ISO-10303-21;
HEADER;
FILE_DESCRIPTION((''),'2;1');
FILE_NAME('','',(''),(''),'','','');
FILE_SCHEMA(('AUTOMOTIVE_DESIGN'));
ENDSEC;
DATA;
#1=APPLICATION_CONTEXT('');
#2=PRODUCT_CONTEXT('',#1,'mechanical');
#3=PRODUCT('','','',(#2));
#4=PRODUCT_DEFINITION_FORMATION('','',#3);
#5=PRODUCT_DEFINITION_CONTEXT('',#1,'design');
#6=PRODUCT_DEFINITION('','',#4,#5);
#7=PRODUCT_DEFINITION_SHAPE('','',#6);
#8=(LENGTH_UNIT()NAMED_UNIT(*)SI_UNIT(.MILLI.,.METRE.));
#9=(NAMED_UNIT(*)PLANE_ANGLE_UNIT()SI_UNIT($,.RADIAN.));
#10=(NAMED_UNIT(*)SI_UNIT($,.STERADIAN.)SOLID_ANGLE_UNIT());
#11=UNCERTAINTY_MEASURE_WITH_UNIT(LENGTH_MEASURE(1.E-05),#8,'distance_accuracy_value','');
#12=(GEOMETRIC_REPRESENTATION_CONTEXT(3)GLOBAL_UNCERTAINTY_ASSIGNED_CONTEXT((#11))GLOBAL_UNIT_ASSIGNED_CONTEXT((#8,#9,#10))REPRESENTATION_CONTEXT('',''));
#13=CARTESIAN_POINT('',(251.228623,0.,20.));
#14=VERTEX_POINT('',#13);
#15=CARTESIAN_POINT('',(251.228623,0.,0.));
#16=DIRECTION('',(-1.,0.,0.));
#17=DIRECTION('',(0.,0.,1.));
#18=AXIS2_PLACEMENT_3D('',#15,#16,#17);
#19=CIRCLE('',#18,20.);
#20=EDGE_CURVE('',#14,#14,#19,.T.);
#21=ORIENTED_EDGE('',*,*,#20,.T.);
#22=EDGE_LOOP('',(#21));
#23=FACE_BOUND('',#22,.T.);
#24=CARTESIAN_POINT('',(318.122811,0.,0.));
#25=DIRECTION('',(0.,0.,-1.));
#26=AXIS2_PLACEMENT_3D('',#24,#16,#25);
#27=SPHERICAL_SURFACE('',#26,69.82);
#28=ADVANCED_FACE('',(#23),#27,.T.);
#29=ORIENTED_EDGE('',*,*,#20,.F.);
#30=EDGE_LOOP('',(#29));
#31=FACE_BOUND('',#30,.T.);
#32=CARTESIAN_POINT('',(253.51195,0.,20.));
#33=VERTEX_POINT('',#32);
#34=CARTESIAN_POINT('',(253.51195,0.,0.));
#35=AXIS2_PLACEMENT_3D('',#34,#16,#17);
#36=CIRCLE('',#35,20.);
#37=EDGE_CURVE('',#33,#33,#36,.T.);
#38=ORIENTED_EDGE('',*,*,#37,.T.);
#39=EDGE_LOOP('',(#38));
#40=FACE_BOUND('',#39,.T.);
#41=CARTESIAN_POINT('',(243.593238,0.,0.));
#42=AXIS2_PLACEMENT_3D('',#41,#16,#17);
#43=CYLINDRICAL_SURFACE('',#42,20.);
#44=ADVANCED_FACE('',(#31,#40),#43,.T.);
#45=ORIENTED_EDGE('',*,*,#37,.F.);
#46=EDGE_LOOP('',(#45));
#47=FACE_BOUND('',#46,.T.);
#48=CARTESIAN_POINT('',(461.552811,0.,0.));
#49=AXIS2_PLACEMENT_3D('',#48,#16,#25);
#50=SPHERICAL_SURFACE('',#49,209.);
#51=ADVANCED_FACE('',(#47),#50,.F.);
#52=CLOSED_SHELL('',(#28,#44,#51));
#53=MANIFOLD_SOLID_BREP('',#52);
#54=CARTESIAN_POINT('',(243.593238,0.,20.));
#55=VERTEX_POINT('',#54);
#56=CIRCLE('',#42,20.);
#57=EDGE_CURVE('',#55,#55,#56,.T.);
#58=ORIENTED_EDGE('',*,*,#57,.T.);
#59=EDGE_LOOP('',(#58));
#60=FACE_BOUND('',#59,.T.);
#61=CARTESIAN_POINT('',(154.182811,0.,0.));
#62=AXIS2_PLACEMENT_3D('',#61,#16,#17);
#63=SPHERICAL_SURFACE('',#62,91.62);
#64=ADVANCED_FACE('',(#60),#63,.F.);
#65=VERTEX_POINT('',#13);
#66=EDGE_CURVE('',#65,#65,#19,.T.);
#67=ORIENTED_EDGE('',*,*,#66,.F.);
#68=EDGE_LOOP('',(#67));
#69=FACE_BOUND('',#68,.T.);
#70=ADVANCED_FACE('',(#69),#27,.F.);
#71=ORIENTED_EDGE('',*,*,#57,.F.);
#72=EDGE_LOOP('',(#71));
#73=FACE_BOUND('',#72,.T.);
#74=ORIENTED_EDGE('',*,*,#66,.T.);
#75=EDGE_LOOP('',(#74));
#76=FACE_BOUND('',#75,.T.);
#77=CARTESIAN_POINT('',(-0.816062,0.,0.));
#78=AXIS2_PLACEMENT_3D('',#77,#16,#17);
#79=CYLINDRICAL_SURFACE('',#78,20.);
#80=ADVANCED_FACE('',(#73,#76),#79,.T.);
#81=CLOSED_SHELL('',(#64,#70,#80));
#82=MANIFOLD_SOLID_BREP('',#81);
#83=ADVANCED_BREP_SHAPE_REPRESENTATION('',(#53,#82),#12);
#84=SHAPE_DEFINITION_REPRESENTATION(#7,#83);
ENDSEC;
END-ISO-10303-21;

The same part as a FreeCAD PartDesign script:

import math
import FreeCAD as App
import Part
import Sketcher

V = App.Vector

doc = App.newDocument("Part")
body = doc.addObject("PartDesign::Body", "Body")

sketch1 = doc.addObject("Sketcher::SketchObject", "Sketch")
body.addObject(sketch1)
sketch1.AttachmentSupport = (doc.XZ_Plane, [""])
sketch1.MapMode = "FlatFace"
sketch1.addGeometry([
    Part.LineSegment(V(251.228623, -20, 0), V(243.593238, -20, 0)),
    Part.ArcOfCircle(Part.Circle(V(154.182811, 0, 0), V(0, 0, 1), 91.62), math.radians(-12.608789), math.radians(0)),
    Part.LineSegment(V(245.802811, 0, 0), V(248.302811, 0, 0)),
    Part.ArcOfCircle(Part.Circle(V(318.122811, 0, 0), V(0, 0, 1), 69.82), math.radians(180), math.radians(196.645594)),
], False)
sketch1.addConstraint([
    Sketcher.Constraint("Coincident", 0, 2, 1, 1),
    Sketcher.Constraint("Coincident", 1, 2, 2, 1),
    Sketcher.Constraint("Coincident", 2, 2, 3, 1),
    Sketcher.Constraint("Coincident", 3, 2, 0, 1),
    Sketcher.Constraint("Horizontal", 0),
    Sketcher.Constraint("Horizontal", 2),
    Sketcher.Constraint("PointOnObject", 1, 3, -1),
    Sketcher.Constraint("PointOnObject", 3, 3, -1),
    Sketcher.Constraint("PointOnObject", 1, 2, -1),
    Sketcher.Constraint("Radius", 1, 91.62),
    Sketcher.Constraint("Radius", 3, 69.82),
    Sketcher.Constraint("DistanceX", 2, 1, 2, 2, 2.5),
    Sketcher.Constraint("DistanceY", 0, 2, -1, 1, 20.0),
    Sketcher.Constraint("DistanceX", -1, 1, 1, 3, 154.182811),
])
revolution = doc.addObject("PartDesign::Revolution", "Revolution")
body.addObject(revolution)
revolution.Profile = sketch1
revolution.ReferenceAxis = (sketch1, ["H_Axis"])
revolution.Angle = 360
body2 = doc.addObject("PartDesign::Body", "Body001")

sketch2 = doc.addObject("Sketcher::SketchObject", "Sketch001")
body2.addObject(sketch2)
sketch2.AttachmentSupport = (doc.getObject("XZ_Plane001"), [""])
sketch2.MapMode = "FlatFace"
sketch2.addGeometry([
    Part.LineSegment(V(253.51195, -20, 0), V(251.228623, -20, 0)),
    Part.ArcOfCircle(Part.Circle(V(318.122811, 0, 0), V(0, 0, 1), 69.82), math.radians(180), math.radians(196.645594)),
    Part.LineSegment(V(248.302811, 0, 0), V(252.552811, 0, 0)),
    Part.ArcOfCircle(Part.Circle(V(461.552811, 0, 0), V(0, 0, 1), 209), math.radians(180), math.radians(185.491252)),
], False)
sketch2.addConstraint([
    Sketcher.Constraint("Coincident", 0, 2, 1, 2),
    Sketcher.Constraint("Coincident", 1, 1, 2, 1),
    Sketcher.Constraint("Coincident", 2, 2, 3, 1),
    Sketcher.Constraint("Coincident", 3, 2, 0, 1),
    Sketcher.Constraint("Horizontal", 0),
    Sketcher.Constraint("Horizontal", 2),
    Sketcher.Constraint("PointOnObject", 1, 3, -1),
    Sketcher.Constraint("PointOnObject", 3, 3, -1),
    Sketcher.Constraint("PointOnObject", 1, 1, -1),
    Sketcher.Constraint("Radius", 3, 209.0),
    Sketcher.Constraint("Radius", 1, 69.82),
    Sketcher.Constraint("DistanceY", 0, 2, -1, 1, 20.0),
    Sketcher.Constraint("DistanceX", 2, 1, 2, 2, 4.25),
    Sketcher.Constraint("DistanceX", -1, 1, 1, 3, 318.122811),
])
revolution2 = doc.addObject("PartDesign::Revolution", "Revolution001")
body2.addObject(revolution2)
revolution2.Profile = sketch2
revolution2.ReferenceAxis = (sketch2, ["H_Axis"])
revolution2.Angle = 360

doc.recompute()
